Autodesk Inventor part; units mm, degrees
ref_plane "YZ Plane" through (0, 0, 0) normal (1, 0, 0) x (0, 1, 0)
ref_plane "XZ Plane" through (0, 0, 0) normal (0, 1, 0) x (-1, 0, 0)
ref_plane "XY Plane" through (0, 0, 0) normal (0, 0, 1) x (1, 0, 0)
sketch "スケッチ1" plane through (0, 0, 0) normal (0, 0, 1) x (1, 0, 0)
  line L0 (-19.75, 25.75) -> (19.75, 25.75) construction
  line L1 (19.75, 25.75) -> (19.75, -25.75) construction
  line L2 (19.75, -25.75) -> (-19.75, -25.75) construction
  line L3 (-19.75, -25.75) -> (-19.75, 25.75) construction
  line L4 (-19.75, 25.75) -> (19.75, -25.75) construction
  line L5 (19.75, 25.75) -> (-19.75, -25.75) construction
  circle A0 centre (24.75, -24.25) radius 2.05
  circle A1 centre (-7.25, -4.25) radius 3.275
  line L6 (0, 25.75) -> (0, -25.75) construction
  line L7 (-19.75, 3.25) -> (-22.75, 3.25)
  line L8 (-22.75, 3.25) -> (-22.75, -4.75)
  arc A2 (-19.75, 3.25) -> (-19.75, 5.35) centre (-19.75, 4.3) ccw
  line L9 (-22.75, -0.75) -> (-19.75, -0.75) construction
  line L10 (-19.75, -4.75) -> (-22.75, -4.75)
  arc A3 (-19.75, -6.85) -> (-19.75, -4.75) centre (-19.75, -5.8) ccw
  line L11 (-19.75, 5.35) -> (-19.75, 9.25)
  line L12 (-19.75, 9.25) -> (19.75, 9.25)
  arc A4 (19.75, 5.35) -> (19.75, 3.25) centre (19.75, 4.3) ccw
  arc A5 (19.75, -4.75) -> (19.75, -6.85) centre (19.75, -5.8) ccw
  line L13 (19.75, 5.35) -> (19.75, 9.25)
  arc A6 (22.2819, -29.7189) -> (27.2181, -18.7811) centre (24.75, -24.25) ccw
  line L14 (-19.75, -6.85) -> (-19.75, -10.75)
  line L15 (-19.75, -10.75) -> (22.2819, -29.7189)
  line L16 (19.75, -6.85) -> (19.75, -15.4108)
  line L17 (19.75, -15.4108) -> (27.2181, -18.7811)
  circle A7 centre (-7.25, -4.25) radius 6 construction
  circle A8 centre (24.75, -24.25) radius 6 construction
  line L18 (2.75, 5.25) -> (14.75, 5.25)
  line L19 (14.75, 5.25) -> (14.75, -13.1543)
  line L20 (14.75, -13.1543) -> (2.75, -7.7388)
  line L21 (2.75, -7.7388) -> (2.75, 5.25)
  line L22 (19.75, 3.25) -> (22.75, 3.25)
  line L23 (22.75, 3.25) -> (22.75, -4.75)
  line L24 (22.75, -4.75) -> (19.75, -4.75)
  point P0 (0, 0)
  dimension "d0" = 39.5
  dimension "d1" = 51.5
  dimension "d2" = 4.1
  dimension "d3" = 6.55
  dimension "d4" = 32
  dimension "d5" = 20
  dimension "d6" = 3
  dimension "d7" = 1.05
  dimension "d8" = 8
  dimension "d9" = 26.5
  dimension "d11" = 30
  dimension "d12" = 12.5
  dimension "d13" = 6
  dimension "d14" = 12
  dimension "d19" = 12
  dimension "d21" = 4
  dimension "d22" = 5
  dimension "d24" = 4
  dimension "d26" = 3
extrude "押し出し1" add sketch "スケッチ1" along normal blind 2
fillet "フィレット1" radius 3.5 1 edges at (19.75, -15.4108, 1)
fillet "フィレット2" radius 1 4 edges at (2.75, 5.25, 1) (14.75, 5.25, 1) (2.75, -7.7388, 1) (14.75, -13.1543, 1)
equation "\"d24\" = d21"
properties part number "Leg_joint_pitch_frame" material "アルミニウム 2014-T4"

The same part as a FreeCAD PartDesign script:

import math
import FreeCAD as App
import Part
import Sketcher
from FreeCAD import Vector
Q = App.Units.Quantity


def edges_at(feature, points):
    """Names of the edges that pass closest to the given points."""
    edges = feature.Shape.Edges
    near = lambda p: min(range(len(edges)), key=lambda i: edges[i].distToShape(Part.Vertex(*p))[0])
    return sorted({f"Edge{near(p) + 1}" for p in points})


def add_polygon(sketch, points):
    """Adds a closed chain of lines whose ends are joined by coincident constraints."""
    first, n = sketch.GeometryCount, len(points)
    for a, b in zip(points, points[1:] + points[:1]):
        sketch.addGeometry(Part.LineSegment(App.Vector(*a, 0), App.Vector(*b, 0)), False)
    for i in range(n):
        sketch.addConstraint(Sketcher.Constraint("Coincident", first + i, 2, first + (i + 1) % n, 1))

doc = App.newDocument("Part")
body = doc.addObject("PartDesign::Body", "Body")

sketch1 = body.newObject("Sketcher::SketchObject", "Sketch")
sketch1.AttachmentSupport = (doc.getObject("XY_Plane"), [""])
sketch1.MapMode = "FlatFace"
sketch1.addGeometry(Part.ArcOfCircle(Part.Circle(Vector(-19.8, 4.3, 0), Vector(0, 0, 1), 1), math.radians(-90), math.radians(90)), False)
sketch1.addGeometry(Part.LineSegment(Vector(-19.8, 3.2, 0), Vector(-22.8, 3.2, 0)), False)
sketch1.addGeometry(Part.LineSegment(Vector(-22.8, 3.2, 0), Vector(-22.8, -4.8, 0)), False)
sketch1.addGeometry(Part.LineSegment(Vector(-22.8, -4.8, 0), Vector(-19.8, -4.8, 0)), False)
sketch1.addGeometry(Part.ArcOfCircle(Part.Circle(Vector(-19.8, -5.8, 0), Vector(0, 0, 1), 1), math.radians(-90), math.radians(90)), False)
sketch1.addGeometry(Part.LineSegment(Vector(-19.8, -6.8, 0), Vector(-19.8, -10.8, 0)), False)
sketch1.addGeometry(Part.LineSegment(Vector(-19.8, -10.8, 0), Vector(22.3, -29.7, 0)), False)
sketch1.addGeometry(Part.ArcOfCircle(Part.Circle(Vector(24.8, -24.2, 0), Vector(0, 0, 1), 6), math.radians(-114), math.radians(66)), False)
sketch1.addGeometry(Part.LineSegment(Vector(27.2, -18.8, 0), Vector(19.8, -15.4, 0)), False)
sketch1.addGeometry(Part.LineSegment(Vector(19.8, -15.4, 0), Vector(19.8, -6.8, 0)), False)
sketch1.addGeometry(Part.ArcOfCircle(Part.Circle(Vector(19.8, -5.8, 0), Vector(0, 0, 1), 1), math.radians(90), math.radians(270)), False)
sketch1.addGeometry(Part.LineSegment(Vector(19.8, -4.8, 0), Vector(22.8, -4.8, 0)), False)
sketch1.addGeometry(Part.LineSegment(Vector(22.8, -4.8, 0), Vector(22.8, 3.2, 0)), False)
sketch1.addGeometry(Part.LineSegment(Vector(22.8, 3.2, 0), Vector(19.8, 3.2, 0)), False)
sketch1.addGeometry(Part.ArcOfCircle(Part.Circle(Vector(19.8, 4.3, 0), Vector(0, 0, 1), 1), math.radians(90), math.radians(270)), False)
sketch1.addGeometry(Part.LineSegment(Vector(19.8, 5.3, 0), Vector(19.8, 9.2, 0)), False)
sketch1.addGeometry(Part.LineSegment(Vector(19.8, 9.2, 0), Vector(-19.8, 9.2, 0)), False)
sketch1.addGeometry(Part.LineSegment(Vector(-19.8, 9.2, 0), Vector(-19.8, 5.3, 0)), False)
sketch1.addGeometry(Part.Circle(Vector(24.8, -24.2, 0), Vector(0, 0, 1), 2), False)
sketch1.addGeometry(Part.Circle(Vector(-7.2, -4.2, 0), Vector(0, 0, 1), 3.3), False)
add_polygon(sketch1, [(2.8, -7.7), (2.8, 5.2), (14.8, 5.2), (14.8, -13.2)])
sketch1.addConstraint([
    Sketcher.Constraint("Tangent", 0, 1, 1, 1),
    Sketcher.Constraint("Coincident", 1, 2, 2, 1),
    Sketcher.Constraint("Coincident", 2, 2, 3, 1),
    Sketcher.Constraint("Tangent", 3, 2, 4, 2),
    Sketcher.Constraint("Coincident", 4, 1, 5, 1),
    Sketcher.Constraint("Coincident", 5, 2, 6, 1),
    Sketcher.Constraint("Tangent", 6, 2, 7, 1),
    Sketcher.Constraint("Tangent", 7, 2, 8, 1),
    Sketcher.Constraint("Coincident", 8, 2, 9, 1),
    Sketcher.Constraint("Coincident", 9, 2, 10, 2),
    Sketcher.Constraint("Tangent", 10, 1, 11, 1),
    Sketcher.Constraint("Coincident", 11, 2, 12, 1),
    Sketcher.Constraint("Coincident", 12, 2, 13, 1),
    Sketcher.Constraint("Tangent", 13, 2, 14, 2),
    Sketcher.Constraint("Coincident", 14, 1, 15, 1),
    Sketcher.Constraint("Coincident", 15, 2, 16, 1),
    Sketcher.Constraint("Coincident", 16, 2, 17, 1),
    Sketcher.Constraint("Coincident", 17, 2, 0, 2),
    Sketcher.Constraint("Horizontal", 1),
    Sketcher.Constraint("Vertical", 2),
    Sketcher.Constraint("Horizontal", 3),
    Sketcher.Constraint("Vertical", 5),
    Sketcher.Constraint("Vertical", 9),
    Sketcher.Constraint("Horizontal", 11),
    Sketcher.Constraint("Vertical", 12),
    Sketcher.Constraint("Horizontal", 13),
    Sketcher.Constraint("Vertical", 15),
    Sketcher.Constraint("Horizontal", 16),
    Sketcher.Constraint("Vertical", 17),
    Sketcher.Constraint("Vertical", 20),
    Sketcher.Constraint("Horizontal", 21),
    Sketcher.Constraint("Vertical", 22),
    Sketcher.Constraint("Coincident", 18, 3, 7, 3),
    Sketcher.Constraint("Equal", 0, 4),
    Sketcher.Constraint("Equal", 4, 10),
    Sketcher.Constraint("Equal", 10, 14),
    Sketcher.Constraint("Symmetric", 4, 3, 10, 3, -2),
    Sketcher.Constraint("Symmetric", 0, 3, 14, 3, -2),
    Sketcher.Constraint("Parallel", 6, 8),
    Sketcher.Constraint("Parallel", 8, 23),
    Sketcher.Constraint("Vertical", 0, 3, 4, 3),
    Sketcher.Constraint("Vertical", 3, 2, 4, 1),
    Sketcher.Constraint("Vertical", 14, 3, 8, 2),
    Sketcher.Constraint("Vertical", 13, 2, 14, 1),
    Sketcher.Constraint("Vertical", 5, 2, 16, 2),
    Sketcher.Constraint("Equal", 3, 11),
    Sketcher.Constraint("Equal", 5, 15),
    Sketcher.Constraint("Radius", 7, 6.0),
    Sketcher.Constraint("Diameter", 18, 4.1),
    Sketcher.Constraint("Diameter", 19, 6.55),
    Sketcher.Constraint("DistanceX", 1, 2, 1, 1, 3.0),
    Sketcher.Constraint("DistanceX", 21, 1, 21, 2, 12.0),
    Sketcher.Constraint("DistanceY", 2, 2, 2, 1, 8.0),
    Sketcher.Constraint("Radius", 0, 1.05),
    Sketcher.Constraint("DistanceX", 16, 2, 16, 1, 39.5),
    Sketcher.Constraint("DistanceX", 10, 3, 7, 3, 5.0),
    Sketcher.Constraint("DistanceX", 19, 3, 7, 3, 32.0),
    Sketcher.Constraint("DistanceY", 7, 3, 19, 3, 20.0),
    Sketcher.Constraint("DistanceY", 5, 2, 3, 2, 6.0),
    Sketcher.Constraint("DistanceY", 20, 2, 15, 2, 4.0),
    Sketcher.Constraint("DistanceX", 21, 2, 14, 1, 5.0),
    Sketcher.Constraint("DistanceY", -1, 1, 0, 3, 4.3),
    Sketcher.Constraint("Angle", 6, Q("-24.2895 deg")),
    Sketcher.Constraint("DistanceY", 20, 1, 20, 2, 12.9888),
])
pad1 = body.newObject("PartDesign::Pad", "Pad")
pad1.Profile = sketch1
pad1.Length = 2
doc.recompute()

fillet = body.newObject("PartDesign::Fillet", "Fillet")
fillet.Base = (pad1, edges_at(pad1, [(19.75, -15.411, 1)]))
fillet.Radius = 3.5
doc.recompute()

fillet2 = body.newObject("PartDesign::Fillet", "Fillet001")
fillet2.Base = (fillet, edges_at(fillet, [
    (2.75, 5.25, 1),
    (14.75, 5.25, 1),
    (2.75, -7.739, 1),
    (14.75, -13.154, 1),
]))
fillet2.Radius = 1

doc.recompute()
